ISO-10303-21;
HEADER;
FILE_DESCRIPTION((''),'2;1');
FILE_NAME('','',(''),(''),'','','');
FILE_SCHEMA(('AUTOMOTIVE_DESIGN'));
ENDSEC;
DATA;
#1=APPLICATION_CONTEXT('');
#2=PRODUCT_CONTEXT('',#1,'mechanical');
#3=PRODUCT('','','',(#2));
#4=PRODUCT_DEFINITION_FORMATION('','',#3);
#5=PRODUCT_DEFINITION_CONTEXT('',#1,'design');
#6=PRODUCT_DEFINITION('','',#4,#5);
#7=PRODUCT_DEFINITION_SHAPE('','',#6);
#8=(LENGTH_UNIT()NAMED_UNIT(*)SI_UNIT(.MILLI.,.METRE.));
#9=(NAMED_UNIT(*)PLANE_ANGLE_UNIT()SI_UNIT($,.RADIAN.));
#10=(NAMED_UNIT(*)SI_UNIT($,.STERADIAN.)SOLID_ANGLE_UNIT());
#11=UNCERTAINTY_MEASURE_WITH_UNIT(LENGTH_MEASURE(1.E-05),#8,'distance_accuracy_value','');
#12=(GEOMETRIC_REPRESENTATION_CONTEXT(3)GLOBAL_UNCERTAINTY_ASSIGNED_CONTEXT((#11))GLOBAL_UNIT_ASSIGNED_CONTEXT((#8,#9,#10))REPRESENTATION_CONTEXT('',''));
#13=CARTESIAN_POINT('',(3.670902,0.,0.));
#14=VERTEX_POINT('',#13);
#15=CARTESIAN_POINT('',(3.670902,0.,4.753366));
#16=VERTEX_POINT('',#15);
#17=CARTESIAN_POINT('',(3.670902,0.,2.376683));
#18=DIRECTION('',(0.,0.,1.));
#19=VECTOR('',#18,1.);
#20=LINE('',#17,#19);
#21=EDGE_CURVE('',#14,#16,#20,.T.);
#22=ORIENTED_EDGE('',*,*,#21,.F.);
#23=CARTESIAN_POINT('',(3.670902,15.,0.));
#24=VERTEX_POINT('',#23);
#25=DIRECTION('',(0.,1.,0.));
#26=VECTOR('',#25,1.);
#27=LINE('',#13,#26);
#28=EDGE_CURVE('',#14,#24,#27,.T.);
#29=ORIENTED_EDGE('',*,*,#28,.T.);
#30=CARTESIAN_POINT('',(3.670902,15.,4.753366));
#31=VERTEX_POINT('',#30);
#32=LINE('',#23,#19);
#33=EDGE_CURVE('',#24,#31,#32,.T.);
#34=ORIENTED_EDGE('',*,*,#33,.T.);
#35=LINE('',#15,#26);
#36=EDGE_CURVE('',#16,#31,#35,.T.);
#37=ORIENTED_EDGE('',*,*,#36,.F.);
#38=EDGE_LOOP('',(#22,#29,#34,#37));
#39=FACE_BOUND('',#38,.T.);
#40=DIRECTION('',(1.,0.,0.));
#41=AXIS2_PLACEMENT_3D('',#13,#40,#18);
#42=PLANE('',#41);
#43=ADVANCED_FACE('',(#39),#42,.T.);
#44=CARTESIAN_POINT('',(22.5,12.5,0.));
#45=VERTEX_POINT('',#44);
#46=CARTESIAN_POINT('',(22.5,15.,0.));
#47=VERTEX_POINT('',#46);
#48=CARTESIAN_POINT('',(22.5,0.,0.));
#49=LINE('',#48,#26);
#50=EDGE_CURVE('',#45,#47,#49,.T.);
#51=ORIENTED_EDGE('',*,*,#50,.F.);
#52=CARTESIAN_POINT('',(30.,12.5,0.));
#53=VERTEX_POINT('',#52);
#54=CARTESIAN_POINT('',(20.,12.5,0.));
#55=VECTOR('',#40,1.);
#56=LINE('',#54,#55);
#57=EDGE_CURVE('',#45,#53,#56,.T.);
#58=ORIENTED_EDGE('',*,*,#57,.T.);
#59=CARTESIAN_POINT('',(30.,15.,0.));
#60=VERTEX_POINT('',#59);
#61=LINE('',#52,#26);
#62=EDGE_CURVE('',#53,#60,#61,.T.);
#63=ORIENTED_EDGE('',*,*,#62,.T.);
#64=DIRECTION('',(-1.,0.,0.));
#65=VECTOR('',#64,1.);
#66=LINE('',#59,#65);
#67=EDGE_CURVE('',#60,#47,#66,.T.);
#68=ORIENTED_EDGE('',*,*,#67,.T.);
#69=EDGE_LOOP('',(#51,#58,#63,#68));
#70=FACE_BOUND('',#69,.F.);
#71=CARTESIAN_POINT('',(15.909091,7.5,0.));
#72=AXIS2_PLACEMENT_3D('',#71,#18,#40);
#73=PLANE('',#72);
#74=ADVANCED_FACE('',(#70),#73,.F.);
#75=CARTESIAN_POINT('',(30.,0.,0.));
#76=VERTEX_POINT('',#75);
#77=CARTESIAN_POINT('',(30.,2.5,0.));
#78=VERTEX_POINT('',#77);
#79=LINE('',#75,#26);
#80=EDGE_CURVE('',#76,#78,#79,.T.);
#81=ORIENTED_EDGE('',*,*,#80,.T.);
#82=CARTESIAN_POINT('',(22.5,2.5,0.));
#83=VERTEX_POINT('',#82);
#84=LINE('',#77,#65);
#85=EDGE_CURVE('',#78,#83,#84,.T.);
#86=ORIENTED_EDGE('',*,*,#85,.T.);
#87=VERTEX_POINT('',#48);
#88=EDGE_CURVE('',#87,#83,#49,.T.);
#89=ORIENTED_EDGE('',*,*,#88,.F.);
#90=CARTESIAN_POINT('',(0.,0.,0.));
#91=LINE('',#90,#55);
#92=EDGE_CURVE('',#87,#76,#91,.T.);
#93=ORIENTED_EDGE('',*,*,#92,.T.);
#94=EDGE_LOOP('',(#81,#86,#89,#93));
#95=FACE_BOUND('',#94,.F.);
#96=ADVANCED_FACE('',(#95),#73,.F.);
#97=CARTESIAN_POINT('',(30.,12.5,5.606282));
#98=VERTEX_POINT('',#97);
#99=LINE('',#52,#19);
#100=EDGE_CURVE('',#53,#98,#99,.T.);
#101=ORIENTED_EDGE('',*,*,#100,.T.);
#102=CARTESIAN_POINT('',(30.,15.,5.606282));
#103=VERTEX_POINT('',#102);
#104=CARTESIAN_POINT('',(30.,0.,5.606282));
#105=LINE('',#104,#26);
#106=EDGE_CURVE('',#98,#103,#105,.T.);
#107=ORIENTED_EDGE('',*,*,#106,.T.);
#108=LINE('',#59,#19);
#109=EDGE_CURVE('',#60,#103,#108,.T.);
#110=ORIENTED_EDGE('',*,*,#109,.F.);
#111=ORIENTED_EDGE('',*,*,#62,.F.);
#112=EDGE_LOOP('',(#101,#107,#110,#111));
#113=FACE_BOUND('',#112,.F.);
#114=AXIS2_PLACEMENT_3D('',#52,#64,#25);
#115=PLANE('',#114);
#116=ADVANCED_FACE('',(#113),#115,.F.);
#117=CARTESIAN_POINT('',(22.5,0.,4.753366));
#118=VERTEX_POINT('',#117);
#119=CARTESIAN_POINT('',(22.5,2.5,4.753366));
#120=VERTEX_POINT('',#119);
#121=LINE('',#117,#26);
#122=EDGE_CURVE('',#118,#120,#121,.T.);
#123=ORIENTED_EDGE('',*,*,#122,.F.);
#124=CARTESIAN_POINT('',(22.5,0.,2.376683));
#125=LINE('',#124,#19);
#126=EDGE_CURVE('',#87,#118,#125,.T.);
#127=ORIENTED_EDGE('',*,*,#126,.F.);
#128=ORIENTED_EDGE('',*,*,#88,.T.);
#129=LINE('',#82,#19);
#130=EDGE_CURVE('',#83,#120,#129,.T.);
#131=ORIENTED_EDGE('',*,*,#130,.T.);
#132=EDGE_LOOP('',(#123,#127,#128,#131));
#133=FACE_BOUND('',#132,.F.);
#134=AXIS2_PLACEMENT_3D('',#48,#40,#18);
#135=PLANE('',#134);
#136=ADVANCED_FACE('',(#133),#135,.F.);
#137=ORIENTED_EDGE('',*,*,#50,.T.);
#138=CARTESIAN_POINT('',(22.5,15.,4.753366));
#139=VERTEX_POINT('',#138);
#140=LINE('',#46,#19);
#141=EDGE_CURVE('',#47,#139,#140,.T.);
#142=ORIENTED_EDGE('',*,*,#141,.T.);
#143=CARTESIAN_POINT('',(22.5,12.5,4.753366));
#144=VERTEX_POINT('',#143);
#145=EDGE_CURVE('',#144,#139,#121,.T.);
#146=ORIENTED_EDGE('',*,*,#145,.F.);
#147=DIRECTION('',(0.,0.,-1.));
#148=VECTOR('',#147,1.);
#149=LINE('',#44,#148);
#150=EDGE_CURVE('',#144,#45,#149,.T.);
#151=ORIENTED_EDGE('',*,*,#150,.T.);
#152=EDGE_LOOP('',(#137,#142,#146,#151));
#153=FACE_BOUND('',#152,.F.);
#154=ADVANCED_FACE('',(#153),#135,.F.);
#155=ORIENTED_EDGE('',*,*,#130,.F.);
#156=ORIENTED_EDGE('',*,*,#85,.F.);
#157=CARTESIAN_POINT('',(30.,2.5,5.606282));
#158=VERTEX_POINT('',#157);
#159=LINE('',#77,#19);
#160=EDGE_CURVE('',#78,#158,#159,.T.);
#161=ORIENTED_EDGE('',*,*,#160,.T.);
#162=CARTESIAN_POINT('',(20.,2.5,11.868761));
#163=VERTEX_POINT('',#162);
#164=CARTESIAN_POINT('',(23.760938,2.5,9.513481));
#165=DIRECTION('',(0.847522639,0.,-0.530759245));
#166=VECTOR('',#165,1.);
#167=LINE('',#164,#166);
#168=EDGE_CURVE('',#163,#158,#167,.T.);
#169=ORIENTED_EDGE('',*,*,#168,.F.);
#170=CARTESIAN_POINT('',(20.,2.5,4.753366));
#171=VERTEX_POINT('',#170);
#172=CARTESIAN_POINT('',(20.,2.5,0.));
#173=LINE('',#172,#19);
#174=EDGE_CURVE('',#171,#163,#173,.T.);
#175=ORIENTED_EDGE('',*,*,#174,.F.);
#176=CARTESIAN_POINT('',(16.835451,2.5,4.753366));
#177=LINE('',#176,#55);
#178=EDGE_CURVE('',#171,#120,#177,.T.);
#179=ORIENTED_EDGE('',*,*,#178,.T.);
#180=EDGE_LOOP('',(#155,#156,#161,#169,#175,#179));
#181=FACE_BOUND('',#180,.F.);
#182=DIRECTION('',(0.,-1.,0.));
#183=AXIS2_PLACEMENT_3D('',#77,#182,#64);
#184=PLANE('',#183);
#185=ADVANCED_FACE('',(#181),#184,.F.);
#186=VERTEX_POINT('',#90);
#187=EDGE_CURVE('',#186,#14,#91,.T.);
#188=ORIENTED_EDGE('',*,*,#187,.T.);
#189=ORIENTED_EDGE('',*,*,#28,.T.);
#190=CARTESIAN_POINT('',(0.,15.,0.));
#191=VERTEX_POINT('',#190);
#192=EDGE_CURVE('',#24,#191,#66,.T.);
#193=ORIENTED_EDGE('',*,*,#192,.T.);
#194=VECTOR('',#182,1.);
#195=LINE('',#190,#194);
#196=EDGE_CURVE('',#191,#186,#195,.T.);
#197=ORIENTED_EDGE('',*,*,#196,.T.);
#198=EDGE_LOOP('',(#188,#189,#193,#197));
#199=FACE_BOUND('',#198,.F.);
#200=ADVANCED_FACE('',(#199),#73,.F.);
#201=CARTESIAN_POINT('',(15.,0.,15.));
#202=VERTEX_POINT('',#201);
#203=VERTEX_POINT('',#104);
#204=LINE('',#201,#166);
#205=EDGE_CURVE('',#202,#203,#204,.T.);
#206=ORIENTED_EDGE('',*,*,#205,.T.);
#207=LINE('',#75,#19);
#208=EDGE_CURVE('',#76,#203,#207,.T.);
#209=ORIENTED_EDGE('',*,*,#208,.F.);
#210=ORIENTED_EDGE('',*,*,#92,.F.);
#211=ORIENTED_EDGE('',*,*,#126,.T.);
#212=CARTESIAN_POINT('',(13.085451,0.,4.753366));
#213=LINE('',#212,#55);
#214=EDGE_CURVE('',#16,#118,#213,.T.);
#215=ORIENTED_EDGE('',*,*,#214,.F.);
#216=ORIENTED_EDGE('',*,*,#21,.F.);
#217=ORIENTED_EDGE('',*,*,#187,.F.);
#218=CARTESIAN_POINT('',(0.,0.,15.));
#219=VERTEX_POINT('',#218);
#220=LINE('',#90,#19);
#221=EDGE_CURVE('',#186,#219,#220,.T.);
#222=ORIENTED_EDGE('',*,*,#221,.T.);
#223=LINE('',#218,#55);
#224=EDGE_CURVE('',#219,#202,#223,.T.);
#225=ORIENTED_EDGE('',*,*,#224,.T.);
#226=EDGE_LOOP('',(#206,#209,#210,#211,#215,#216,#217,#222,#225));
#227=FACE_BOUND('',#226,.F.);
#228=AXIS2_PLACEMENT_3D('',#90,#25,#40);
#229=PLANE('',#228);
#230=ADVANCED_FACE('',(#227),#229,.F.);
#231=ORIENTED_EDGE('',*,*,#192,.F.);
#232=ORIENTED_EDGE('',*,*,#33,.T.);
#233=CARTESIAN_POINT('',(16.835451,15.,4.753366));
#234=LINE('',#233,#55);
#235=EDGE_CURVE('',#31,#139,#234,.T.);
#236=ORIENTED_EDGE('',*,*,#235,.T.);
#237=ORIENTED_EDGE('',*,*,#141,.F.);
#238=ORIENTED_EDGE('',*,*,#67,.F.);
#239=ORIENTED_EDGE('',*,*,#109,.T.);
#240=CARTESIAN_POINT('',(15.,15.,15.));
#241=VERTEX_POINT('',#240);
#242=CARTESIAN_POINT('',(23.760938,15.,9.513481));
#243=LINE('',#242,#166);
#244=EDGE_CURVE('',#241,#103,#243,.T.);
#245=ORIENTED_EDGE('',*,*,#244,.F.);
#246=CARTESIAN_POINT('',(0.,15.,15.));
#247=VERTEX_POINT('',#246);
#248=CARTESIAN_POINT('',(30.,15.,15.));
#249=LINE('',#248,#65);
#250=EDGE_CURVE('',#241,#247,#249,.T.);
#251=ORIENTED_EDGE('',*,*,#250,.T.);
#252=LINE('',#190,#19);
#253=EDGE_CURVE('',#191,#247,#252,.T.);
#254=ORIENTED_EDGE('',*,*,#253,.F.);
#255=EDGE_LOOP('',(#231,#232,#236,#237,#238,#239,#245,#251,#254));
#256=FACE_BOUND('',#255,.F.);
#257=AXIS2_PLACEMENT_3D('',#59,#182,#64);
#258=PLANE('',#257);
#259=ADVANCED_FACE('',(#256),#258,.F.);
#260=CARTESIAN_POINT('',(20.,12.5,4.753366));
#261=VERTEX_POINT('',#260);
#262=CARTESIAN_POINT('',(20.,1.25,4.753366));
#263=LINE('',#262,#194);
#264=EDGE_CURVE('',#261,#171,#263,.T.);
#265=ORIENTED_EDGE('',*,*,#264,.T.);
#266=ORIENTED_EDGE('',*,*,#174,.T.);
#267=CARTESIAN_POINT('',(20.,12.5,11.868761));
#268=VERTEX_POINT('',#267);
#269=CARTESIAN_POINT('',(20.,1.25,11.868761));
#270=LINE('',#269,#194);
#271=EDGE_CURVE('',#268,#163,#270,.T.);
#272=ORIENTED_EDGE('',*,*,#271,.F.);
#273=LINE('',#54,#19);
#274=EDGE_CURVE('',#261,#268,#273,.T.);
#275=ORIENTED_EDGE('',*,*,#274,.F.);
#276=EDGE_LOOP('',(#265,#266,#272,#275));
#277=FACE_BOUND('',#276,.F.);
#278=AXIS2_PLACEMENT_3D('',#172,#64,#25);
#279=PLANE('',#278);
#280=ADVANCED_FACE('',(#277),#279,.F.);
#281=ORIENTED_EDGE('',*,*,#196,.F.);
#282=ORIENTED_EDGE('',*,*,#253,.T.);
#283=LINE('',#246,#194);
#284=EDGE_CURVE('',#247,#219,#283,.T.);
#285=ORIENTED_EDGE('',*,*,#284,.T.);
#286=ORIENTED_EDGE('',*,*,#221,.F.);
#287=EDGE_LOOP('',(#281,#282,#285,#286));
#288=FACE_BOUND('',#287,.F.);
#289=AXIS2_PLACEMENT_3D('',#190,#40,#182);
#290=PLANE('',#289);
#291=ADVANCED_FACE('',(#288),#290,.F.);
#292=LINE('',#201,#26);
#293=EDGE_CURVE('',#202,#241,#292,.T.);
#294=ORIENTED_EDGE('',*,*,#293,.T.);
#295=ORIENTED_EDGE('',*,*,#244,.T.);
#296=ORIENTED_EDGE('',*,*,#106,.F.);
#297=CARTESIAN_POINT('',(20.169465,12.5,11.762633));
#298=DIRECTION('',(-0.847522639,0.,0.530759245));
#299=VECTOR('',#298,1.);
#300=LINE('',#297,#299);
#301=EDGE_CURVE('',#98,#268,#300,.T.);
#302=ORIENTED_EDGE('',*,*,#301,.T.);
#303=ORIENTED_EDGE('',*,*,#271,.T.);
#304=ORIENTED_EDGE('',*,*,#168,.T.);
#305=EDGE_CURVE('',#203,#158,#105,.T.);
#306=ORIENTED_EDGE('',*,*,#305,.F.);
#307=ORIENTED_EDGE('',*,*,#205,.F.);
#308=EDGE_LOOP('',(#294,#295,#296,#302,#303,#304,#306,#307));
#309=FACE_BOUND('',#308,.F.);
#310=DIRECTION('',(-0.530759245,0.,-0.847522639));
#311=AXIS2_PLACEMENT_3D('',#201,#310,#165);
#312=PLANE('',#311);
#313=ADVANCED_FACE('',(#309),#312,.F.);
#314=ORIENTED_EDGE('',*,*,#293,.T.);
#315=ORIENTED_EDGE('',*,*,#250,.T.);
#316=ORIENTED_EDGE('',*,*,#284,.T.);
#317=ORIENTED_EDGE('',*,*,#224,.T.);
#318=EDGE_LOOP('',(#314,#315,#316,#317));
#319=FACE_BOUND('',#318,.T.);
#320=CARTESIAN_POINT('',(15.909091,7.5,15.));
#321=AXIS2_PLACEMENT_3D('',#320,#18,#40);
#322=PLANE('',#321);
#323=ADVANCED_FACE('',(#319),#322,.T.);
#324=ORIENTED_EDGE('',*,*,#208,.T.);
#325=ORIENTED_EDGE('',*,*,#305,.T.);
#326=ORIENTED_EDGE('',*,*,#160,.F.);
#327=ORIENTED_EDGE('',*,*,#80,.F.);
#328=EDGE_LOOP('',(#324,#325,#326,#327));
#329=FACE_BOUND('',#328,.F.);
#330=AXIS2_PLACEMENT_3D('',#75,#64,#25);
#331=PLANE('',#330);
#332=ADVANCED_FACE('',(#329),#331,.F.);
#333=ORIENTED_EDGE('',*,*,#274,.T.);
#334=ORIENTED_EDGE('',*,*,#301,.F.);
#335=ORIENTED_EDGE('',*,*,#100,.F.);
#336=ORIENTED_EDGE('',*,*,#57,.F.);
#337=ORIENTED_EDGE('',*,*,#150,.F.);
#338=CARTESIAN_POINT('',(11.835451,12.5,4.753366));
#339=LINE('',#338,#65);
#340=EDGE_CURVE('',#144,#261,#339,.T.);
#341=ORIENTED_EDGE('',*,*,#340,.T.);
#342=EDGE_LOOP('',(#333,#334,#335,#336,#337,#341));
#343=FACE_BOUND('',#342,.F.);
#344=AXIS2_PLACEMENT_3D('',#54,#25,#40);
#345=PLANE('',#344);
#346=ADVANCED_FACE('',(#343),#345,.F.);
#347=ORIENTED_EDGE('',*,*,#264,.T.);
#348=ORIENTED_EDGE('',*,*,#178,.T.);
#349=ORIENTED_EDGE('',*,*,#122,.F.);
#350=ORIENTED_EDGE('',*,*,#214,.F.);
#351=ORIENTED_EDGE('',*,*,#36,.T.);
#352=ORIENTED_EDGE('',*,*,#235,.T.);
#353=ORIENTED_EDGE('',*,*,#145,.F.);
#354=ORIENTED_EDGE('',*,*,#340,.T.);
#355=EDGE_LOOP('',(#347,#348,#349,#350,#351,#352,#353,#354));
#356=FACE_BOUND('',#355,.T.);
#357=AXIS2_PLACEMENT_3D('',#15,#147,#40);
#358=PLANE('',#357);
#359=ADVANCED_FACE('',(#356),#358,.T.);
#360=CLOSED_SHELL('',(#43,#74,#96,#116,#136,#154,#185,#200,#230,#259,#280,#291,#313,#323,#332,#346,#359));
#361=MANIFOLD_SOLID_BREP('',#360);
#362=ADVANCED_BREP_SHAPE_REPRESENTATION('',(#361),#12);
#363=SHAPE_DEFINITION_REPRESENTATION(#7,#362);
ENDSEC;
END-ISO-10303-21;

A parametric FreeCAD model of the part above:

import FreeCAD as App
import Part
import Sketcher
Q = App.Units.Quantity


def add_polygon(sketch, points):
    """Adds a closed chain of lines whose ends are joined by coincident constraints."""
    first, n = sketch.GeometryCount, len(points)
    for a, b in zip(points, points[1:] + points[:1]):
        sketch.addGeometry(Part.LineSegment(App.Vector(*a, 0), App.Vector(*b, 0)), False)
    for i in range(n):
        sketch.addConstraint(Sketcher.Constraint("Coincident", first + i, 2, first + (i + 1) % n, 1))

doc = App.newDocument("Part")
body = doc.addObject("PartDesign::Body", "Body")

sketch1 = body.newObject("Sketcher::SketchObject", "Sketch")
sketch1.AttachmentSupport = (doc.getObject("XY_Plane"), [""])
sketch1.MapMode = "FlatFace"
add_polygon(sketch1, [(0, 15), (0, 0), (30, 0), (30, 2.5), (20, 2.5), (20, 12.5), (30, 12.5), (30, 15)])
sketch1.addConstraint([
    Sketcher.Constraint("Vertical", 0),
    Sketcher.Constraint("Horizontal", 1),
    Sketcher.Constraint("Vertical", 2),
    Sketcher.Constraint("Horizontal", 3),
    Sketcher.Constraint("Vertical", 4),
    Sketcher.Constraint("Horizontal", 5),
    Sketcher.Constraint("Vertical", 6),
    Sketcher.Constraint("Horizontal", 7),
    Sketcher.Constraint("Coincident", 0, 2, -1, 1),
    Sketcher.Constraint("Vertical", 2, 2, 5, 2),
    Sketcher.Constraint("Equal", 5, 4),
    Sketcher.Constraint("Equal", 2, 6),
    Sketcher.Constraint("DistanceX", 1, 1, 1, 2, Q("30 mm")),
    Sketcher.Constraint("DistanceX", 3, 2, 3, 1, Q("10 mm")),
    Sketcher.Constraint("DistanceY", 0, 2, 0, 1, Q("15 mm")),
])
pad1 = body.newObject("PartDesign::Pad", "Pad")
pad1.Profile = sketch1
pad1.Length = 15

sketch2 = body.newObject("Sketcher::SketchObject", "Sketch001")
sketch2.AttachmentSupport = (doc.getObject("XZ_Plane"), [""])
sketch2.MapMode = "FlatFace"
add_polygon(sketch2, [(30, 15), (15, 15), (30, 5.606282)])
sketch2.addConstraint([
    Sketcher.Constraint("Horizontal", 0),
    Sketcher.Constraint("Vertical", 2),
    Sketcher.Constraint("DistanceX", 0, 2, 0, 1, Q("15 mm")),
    Sketcher.Constraint("DistanceX", -1, 1, 0, 2, Q("15 mm")),
    Sketcher.Constraint("DistanceY", -1, 1, 0, 2, Q("15 mm")),
    Sketcher.Constraint("DistanceY", 2, 1, 2, 2, Q("9.393718 mm")),
])
pocket1 = body.newObject("PartDesign::Pocket", "Pocket")
pocket1.Profile = sketch2
pocket1.Type = "ThroughAll"

sketch3 = body.newObject("Sketcher::SketchObject", "Sketch002")
sketch3.AttachmentSupport = (doc.getObject("XZ_Plane"), [""])
sketch3.MapMode = "FlatFace"
add_polygon(sketch3, [(3.670902, 4.753366), (3.670902, 0), (22.5, 0), (22.5, 4.753366)])
sketch3.addConstraint([
    Sketcher.Constraint("Vertical", 0),
    Sketcher.Constraint("Horizontal", 1),
    Sketcher.Constraint("Vertical", 2),
    Sketcher.Constraint("Horizontal", 3),
    Sketcher.Constraint("PointOnObject", 0, 2, -1),
    Sketcher.Constraint("DistanceX", -1, 1, 1, 2, Q("22.5 mm")),
    Sketcher.Constraint("DistanceX", 1, 1, 1, 2, Q("18.829098 mm")),
    Sketcher.Constraint("DistanceY", 0, 2, 0, 1, Q("4.753366 mm")),
])
pocket2 = body.newObject("PartDesign::Pocket", "Pocket001")
pocket2.Profile = sketch3
pocket2.Type = "ThroughAll"

doc.recompute()
